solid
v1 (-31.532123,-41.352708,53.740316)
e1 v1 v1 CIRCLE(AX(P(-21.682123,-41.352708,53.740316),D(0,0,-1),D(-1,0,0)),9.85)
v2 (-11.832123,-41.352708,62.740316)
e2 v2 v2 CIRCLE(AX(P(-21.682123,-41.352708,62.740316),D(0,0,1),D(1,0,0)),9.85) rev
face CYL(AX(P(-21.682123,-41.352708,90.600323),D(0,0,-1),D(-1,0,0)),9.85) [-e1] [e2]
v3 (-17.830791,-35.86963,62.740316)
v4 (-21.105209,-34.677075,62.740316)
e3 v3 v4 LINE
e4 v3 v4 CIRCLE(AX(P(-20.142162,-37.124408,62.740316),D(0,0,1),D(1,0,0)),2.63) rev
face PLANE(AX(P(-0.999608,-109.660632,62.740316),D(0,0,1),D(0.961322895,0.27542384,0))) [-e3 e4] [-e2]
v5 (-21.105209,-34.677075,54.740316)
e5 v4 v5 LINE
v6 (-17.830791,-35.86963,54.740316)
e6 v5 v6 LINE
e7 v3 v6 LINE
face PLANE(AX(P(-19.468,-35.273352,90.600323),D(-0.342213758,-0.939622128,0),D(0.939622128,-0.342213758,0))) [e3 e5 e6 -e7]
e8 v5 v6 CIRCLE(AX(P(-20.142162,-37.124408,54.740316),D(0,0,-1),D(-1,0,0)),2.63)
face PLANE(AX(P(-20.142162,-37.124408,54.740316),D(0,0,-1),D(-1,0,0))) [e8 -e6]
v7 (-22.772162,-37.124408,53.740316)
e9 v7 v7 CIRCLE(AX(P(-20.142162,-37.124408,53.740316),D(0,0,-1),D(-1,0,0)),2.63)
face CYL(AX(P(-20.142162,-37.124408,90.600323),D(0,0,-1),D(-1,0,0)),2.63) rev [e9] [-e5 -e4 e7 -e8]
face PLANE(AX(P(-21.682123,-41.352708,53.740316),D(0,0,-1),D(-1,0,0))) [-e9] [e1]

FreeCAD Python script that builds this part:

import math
import FreeCAD as App
import Part
import Sketcher

V = App.Vector
Q = App.Units.Quantity

doc = App.newDocument("Part")
params = doc.addObject("Spreadsheet::Sheet", "Params")
for row, (alias, value) in enumerate([
    ("sketch1_diameter", "19.7 mm"),
    ("sketch1_radius", "2.63 mm"),
    ("pad1_length", "9 mm"),
    ("sketch2_diameter", "5.26 mm"),
    ("pocket1_length", "1 mm"),
], start=1):
    params.set(f"A{row}", alias)
    params.set(f"B{row}", "=" + value)
    params.setAlias(f"B{row}", alias)

body = doc.addObject("PartDesign::Body", "Body")

sketch1 = body.newObject("Sketcher::SketchObject", "Sketch")
sketch1.AttachmentSupport = (doc.getObject("XY_Plane"), [""])
sketch1.MapMode = "FlatFace"
sketch1.AttachmentOffset = App.Placement(V(0, 0, 53.740316), App.Rotation())
sketch1.addGeometry(Part.Circle(V(-21.7, -41.4, 0), V(0, 0, 1), 9.8), False)
sketch1.addGeometry(Part.ArcOfCircle(Part.Circle(V(-20.1, -37.1, 0), V(0, 0, 1), 2.6), math.radians(111), math.radians(388)), False)
sketch1.addGeometry(Part.LineSegment(V(-21.1, -34.7, 0), V(-17.8, -35.9, 0)), False)
sketch1.addConstraint(Sketcher.Constraint("Coincident", 1, 1, 2, 1))
sketch1.addConstraint(Sketcher.Constraint("Coincident", 2, 2, 1, 2))
sketch1.addConstraint(Sketcher.Constraint("Diameter", 0, Q("19.7 mm")))
sketch1.addConstraint(Sketcher.Constraint("Radius", 1, Q("2.63 mm")))
sketch1.addConstraint(Sketcher.Constraint("DistanceY", 0, 3, 1, 3, Q("4.2283 mm")))
sketch1.addConstraint(Sketcher.Constraint("DistanceX", 1, 3, -1, 1, Q("20.142162 mm")))
sketch1.addConstraint(Sketcher.Constraint("DistanceY", 1, 3, -1, 1, Q("37.124408 mm")))
sketch1.addConstraint(Sketcher.Constraint("DistanceX", 1, 1, -1, 1, Q("21.105209 mm")))
sketch1.addConstraint(Sketcher.Constraint("DistanceX", 2, 2, -1, 1, Q("17.830791 mm")))
sketch1.addConstraint(Sketcher.Constraint("DistanceX", 0, 3, 1, 3, Q("1.539962 mm")))
sketch1.setExpression("Constraints[2]", "Params.sketch1_diameter")
sketch1.setExpression("Constraints[3]", "Params.sketch1_radius")
pad1 = body.newObject("PartDesign::Pad", "Pad")
pad1.Profile = sketch1
pad1.setExpression("Length", "Params.pad1_length")

sketch2 = body.newObject("Sketcher::SketchObject", "Sketch001")
sketch2.AttachmentSupport = (doc.getObject("XY_Plane"), [""])
sketch2.MapMode = "FlatFace"
sketch2.AttachmentOffset = App.Placement(V(0, 0, 53.740316), App.Rotation())
sketch2.addGeometry(Part.Circle(V(-20.1, -37.1, 0), V(0, 0, 1), 2.6), False)
sketch2.addConstraint(Sketcher.Constraint("Diameter", 0, Q("5.26 mm")))
sketch2.addConstraint(Sketcher.Constraint("DistanceX", 0, 3, -1, 1, Q("20.142162 mm")))
sketch2.addConstraint(Sketcher.Constraint("DistanceY", 0, 3, -1, 1, Q("37.124408 mm")))
sketch2.setExpression("Constraints[0]", "Params.sketch2_diameter")
pocket1 = body.newObject("PartDesign::Pocket", "Pocket")
pocket1.Profile = sketch2
pocket1.setExpression("Length", "Params.pocket1_length")
pocket1.Reversed = True

doc.recompute()
